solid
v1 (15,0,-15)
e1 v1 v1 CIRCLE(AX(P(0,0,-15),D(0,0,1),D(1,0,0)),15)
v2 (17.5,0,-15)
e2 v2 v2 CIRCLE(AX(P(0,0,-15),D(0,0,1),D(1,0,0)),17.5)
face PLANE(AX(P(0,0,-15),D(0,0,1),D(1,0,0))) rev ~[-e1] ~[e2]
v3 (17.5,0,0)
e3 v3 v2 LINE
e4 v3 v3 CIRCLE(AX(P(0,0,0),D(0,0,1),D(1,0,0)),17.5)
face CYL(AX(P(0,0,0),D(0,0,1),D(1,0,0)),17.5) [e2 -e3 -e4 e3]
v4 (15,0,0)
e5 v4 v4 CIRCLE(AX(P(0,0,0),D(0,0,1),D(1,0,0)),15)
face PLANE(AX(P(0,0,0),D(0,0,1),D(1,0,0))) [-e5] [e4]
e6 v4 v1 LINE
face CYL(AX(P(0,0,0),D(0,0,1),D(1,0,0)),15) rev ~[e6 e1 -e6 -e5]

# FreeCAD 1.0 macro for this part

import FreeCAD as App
import Part
import Sketcher

V = App.Vector

doc = App.newDocument("Part")
body = doc.addObject("PartDesign::Body", "Body")

# Sketch on XY plane
sketch1 = doc.addObject("Sketcher::SketchObject", "Sketch")
body.addObject(sketch1)
sketch1.AttachmentSupport = (doc.XY_Plane, [""])
sketch1.MapMode = "FlatFace"
sketch1.addGeometry([
    Part.Circle(V(0, 0, 0), V(0, 0, 1), 17.5),
    Part.Circle(V(0, 0, 0), V(0, 0, 1), 15),
], False)
sketch1.addConstraint([
    Sketcher.Constraint("Coincident", 0, 3, -1, 1),
    Sketcher.Constraint("Coincident", 1, 3, -1, 1),
    Sketcher.Constraint("Diameter", 0, 35.0),
    Sketcher.Constraint("Diameter", 1, 30.0),
])
pad1 = doc.addObject("PartDesign::Pad", "Pad")
body.addObject(pad1)
pad1.Profile = sketch1
pad1.Length = 15
pad1.Reversed = True

doc.recompute()
